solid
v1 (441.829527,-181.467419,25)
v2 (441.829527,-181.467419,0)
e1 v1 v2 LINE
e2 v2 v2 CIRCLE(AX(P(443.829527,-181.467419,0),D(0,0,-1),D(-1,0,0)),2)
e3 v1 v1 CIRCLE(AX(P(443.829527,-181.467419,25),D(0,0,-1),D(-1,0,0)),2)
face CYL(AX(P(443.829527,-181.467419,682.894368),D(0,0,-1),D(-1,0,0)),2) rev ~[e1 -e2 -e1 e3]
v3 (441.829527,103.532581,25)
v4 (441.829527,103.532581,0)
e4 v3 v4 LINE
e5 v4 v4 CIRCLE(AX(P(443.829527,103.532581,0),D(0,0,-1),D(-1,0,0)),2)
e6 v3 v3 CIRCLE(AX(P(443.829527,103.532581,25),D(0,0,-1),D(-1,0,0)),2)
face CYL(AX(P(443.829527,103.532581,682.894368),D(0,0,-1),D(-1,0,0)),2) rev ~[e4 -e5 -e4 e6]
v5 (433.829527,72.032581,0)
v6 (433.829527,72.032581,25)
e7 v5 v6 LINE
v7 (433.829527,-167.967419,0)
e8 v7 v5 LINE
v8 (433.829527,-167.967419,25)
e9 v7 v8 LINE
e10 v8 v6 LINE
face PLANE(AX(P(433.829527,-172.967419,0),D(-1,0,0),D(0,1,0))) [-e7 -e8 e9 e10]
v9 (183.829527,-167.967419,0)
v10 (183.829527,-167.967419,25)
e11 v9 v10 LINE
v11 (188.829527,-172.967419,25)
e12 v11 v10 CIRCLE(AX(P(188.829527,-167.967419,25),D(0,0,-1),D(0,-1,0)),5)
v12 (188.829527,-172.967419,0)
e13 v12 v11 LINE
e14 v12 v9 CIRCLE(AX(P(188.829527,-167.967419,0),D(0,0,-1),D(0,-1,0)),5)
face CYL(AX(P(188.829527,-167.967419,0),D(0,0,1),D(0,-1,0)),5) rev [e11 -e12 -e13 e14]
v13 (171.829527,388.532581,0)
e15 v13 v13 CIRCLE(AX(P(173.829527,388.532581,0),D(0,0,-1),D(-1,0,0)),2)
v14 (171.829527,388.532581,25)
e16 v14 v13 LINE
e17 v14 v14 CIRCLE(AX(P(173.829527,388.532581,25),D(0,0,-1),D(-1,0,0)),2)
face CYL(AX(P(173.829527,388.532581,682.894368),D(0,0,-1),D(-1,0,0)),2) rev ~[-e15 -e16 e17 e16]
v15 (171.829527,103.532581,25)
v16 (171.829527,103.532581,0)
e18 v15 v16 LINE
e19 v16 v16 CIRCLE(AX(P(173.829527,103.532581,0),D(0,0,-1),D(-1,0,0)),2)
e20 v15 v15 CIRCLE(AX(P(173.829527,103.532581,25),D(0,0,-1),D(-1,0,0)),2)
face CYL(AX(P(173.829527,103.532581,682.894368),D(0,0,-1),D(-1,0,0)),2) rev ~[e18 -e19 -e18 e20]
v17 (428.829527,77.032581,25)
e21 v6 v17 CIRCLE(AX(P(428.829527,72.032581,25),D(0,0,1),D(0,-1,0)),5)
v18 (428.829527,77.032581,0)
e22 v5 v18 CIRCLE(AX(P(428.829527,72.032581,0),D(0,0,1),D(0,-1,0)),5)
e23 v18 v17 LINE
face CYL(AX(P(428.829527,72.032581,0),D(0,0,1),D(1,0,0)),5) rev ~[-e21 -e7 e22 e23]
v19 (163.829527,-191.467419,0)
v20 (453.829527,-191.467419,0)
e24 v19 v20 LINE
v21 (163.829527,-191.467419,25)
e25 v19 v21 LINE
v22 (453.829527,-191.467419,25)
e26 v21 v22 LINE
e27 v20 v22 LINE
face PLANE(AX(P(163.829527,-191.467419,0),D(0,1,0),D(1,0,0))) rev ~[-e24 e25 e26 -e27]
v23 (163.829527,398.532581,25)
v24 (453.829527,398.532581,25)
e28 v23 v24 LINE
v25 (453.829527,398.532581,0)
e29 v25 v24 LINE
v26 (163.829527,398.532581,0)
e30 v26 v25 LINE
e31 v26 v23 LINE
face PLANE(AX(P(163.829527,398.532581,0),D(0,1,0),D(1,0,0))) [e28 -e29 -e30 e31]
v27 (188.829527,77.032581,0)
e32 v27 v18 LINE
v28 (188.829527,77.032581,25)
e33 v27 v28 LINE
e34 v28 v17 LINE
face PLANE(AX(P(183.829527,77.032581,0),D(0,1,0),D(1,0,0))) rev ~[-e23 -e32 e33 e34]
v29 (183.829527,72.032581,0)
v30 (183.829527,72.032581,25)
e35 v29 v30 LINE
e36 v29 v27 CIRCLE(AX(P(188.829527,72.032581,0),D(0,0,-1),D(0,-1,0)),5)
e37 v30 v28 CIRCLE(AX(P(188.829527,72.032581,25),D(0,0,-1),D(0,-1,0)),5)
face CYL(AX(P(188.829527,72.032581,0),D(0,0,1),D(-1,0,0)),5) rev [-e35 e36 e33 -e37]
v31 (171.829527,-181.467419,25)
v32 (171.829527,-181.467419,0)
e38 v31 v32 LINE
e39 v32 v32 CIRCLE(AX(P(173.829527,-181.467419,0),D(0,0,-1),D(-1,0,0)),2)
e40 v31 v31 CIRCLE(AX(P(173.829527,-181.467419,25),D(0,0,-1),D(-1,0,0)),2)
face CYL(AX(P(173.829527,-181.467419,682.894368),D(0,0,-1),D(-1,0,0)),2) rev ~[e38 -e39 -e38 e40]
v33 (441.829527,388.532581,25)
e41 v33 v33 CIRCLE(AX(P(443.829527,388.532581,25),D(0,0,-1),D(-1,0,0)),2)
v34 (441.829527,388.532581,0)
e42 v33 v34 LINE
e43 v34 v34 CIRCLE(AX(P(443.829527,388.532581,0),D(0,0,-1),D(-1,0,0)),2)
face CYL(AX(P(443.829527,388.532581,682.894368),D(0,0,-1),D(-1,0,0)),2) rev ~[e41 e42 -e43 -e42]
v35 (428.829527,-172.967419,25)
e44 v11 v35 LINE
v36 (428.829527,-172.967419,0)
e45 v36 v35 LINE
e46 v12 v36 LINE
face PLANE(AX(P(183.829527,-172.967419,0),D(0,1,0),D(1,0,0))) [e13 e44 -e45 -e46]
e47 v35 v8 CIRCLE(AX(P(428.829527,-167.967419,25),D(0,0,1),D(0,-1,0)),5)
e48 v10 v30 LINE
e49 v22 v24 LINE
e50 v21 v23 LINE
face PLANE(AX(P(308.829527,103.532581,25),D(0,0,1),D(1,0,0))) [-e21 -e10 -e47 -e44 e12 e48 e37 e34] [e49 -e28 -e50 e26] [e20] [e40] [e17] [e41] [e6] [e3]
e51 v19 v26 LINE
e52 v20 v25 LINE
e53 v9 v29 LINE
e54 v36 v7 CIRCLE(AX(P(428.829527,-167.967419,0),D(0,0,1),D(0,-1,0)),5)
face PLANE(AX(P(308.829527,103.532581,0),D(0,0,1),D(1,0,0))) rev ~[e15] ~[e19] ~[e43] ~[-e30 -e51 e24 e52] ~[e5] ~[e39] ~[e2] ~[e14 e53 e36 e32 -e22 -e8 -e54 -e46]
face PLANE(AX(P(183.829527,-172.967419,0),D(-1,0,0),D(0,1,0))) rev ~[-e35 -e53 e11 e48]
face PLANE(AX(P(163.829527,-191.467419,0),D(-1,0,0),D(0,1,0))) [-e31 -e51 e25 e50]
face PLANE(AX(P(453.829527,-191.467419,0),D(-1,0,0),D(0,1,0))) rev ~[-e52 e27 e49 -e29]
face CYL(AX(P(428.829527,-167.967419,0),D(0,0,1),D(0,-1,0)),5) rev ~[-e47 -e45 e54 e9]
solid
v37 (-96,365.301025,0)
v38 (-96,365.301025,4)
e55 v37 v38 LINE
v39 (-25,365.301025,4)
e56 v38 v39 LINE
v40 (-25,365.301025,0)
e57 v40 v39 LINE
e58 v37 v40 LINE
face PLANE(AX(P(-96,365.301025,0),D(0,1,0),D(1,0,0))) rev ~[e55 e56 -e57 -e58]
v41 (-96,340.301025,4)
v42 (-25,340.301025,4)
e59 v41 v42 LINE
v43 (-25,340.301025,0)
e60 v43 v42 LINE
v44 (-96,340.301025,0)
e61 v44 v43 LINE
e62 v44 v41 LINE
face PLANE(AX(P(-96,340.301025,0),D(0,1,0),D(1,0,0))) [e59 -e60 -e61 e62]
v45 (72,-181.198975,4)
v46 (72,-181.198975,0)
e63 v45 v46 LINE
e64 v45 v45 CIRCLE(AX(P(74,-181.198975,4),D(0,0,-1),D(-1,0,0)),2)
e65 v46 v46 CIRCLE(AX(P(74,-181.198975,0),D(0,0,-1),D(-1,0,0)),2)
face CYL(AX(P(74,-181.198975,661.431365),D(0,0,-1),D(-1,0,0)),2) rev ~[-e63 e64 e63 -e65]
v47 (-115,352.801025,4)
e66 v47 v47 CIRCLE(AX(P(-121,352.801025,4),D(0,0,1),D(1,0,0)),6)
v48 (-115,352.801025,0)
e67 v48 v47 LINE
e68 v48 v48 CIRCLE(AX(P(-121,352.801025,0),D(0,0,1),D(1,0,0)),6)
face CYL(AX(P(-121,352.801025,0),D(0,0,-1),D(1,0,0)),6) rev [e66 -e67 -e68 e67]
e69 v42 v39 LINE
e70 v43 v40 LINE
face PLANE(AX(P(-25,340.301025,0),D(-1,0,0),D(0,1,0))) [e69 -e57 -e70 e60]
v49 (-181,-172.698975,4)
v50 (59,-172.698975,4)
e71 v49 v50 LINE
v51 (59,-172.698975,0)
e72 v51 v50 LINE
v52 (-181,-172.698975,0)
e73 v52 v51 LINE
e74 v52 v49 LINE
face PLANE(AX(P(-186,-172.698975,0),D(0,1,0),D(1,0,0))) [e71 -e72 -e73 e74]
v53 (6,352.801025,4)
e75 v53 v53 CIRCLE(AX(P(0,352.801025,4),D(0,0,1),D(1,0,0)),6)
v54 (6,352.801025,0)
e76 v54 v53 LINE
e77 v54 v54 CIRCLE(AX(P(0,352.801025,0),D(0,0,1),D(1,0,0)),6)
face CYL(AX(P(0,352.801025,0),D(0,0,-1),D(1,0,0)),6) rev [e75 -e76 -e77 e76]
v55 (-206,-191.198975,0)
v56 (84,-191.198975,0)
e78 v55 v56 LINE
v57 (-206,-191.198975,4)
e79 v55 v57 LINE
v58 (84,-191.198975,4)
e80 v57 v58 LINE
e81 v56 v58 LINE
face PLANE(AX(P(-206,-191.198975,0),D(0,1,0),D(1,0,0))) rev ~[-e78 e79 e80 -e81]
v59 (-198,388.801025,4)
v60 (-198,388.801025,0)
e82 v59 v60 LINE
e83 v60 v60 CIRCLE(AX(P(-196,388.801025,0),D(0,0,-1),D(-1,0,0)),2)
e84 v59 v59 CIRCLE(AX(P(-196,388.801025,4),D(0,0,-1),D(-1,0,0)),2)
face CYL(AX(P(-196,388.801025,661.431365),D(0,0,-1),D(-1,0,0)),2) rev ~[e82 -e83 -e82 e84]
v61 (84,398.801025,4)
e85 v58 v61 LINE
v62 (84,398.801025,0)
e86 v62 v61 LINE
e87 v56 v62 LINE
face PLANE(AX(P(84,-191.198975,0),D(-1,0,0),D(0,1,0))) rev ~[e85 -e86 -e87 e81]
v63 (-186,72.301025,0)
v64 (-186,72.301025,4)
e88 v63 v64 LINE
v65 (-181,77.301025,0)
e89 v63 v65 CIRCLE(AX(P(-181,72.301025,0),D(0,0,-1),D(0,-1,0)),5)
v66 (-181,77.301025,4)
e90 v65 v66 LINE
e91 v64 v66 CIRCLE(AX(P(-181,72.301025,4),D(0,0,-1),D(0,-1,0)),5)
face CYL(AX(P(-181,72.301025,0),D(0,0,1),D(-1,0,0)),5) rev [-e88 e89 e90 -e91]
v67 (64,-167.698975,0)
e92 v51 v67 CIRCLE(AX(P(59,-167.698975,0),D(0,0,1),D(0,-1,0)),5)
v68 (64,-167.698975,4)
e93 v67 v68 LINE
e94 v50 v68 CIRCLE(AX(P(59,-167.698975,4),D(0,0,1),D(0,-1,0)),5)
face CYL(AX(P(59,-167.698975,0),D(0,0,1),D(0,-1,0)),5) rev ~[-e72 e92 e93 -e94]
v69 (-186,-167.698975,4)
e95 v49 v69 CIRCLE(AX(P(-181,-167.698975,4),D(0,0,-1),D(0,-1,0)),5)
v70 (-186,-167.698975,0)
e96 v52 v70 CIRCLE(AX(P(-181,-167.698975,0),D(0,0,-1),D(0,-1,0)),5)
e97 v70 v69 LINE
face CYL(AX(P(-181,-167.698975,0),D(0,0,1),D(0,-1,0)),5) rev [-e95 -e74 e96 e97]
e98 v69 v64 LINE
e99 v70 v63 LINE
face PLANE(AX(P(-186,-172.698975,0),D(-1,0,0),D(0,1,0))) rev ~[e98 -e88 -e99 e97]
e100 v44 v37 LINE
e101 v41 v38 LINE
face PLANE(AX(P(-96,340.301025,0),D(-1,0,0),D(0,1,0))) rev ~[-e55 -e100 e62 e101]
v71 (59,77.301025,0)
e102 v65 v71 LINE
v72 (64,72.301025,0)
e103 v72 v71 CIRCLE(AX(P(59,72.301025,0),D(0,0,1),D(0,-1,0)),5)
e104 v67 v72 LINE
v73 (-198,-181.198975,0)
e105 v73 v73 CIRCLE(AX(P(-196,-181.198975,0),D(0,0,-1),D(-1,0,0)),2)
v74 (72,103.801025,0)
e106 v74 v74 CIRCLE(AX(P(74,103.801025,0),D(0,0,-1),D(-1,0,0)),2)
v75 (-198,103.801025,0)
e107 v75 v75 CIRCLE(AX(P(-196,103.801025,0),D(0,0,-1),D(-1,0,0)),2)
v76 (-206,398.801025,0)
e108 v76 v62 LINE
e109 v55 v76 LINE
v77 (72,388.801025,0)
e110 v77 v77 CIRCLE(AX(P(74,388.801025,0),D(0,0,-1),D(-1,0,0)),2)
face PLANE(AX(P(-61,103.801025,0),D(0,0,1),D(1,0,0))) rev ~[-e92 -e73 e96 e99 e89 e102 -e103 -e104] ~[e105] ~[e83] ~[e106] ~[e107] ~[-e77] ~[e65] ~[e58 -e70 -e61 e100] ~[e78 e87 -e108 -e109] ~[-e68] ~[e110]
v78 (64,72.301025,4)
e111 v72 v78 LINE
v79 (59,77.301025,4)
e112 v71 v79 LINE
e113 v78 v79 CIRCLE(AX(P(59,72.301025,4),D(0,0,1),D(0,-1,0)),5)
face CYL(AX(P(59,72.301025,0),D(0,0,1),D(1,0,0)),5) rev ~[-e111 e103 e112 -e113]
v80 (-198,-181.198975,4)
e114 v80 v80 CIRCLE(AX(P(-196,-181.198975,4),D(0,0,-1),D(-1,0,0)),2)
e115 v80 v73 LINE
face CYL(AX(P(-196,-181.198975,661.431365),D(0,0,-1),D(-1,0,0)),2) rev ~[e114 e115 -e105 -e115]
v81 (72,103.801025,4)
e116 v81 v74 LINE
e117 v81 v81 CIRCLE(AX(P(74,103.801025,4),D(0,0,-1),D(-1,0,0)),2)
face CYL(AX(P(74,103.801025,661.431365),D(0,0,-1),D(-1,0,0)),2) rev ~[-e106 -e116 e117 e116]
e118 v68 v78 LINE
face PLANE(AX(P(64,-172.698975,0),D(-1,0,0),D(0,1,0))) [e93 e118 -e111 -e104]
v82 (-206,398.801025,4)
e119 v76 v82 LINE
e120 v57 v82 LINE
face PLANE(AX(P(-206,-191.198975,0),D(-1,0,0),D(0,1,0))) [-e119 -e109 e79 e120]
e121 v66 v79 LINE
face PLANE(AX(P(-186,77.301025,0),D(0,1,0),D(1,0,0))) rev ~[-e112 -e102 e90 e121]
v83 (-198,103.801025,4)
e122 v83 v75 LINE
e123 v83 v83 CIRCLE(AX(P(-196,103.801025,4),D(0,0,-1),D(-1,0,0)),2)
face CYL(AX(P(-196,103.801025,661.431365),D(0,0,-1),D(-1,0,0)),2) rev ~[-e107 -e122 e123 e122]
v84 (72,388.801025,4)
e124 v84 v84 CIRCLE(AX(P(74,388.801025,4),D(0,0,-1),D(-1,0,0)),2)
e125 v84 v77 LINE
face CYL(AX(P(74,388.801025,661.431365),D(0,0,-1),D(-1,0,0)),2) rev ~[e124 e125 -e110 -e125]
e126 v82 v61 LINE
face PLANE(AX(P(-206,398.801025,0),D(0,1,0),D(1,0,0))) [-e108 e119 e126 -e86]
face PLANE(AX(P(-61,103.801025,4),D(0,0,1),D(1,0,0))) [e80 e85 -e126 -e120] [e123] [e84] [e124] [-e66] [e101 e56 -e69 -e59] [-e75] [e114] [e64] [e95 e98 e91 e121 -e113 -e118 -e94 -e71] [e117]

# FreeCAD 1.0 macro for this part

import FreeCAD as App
import Part
import Sketcher
Q = App.Units.Quantity


def edges_at(feature, points):
    """Names of the edges that pass closest to the given points."""
    edges = feature.Shape.Edges
    near = lambda p: min(range(len(edges)), key=lambda i: edges[i].distToShape(Part.Vertex(*p))[0])
    return sorted({f"Edge{near(p) + 1}" for p in points})


def add_polygon(sketch, points):
    """Adds a closed chain of lines whose ends are joined by coincident constraints."""
    first, n = sketch.GeometryCount, len(points)
    for a, b in zip(points, points[1:] + points[:1]):
        sketch.addGeometry(Part.LineSegment(App.Vector(*a, 0), App.Vector(*b, 0)), False)
    for i in range(n):
        sketch.addConstraint(Sketcher.Constraint("Coincident", first + i, 2, first + (i + 1) % n, 1))

doc = App.newDocument("Part")
body = doc.addObject("PartDesign::Body", "Body")

# Sketch on XY plane
sketch1 = doc.addObject("Sketcher::SketchObject", "Sketch")
body.addObject(sketch1)
sketch1.AttachmentSupport = (doc.XY_Plane, [""])
sketch1.MapMode = "FlatFace"
add_polygon(sketch1, [(-206, 398.801025), (-206, -191.198975), (84, -191.198975), (84, 398.801025)])  # lines 0-3
add_polygon(sketch1, [(64, -172.698975), (-186, -172.698975), (-186, 77.301025), (64, 77.301025)])  # lines 4-7
sketch1.addGeometry(Part.Circle(App.Vector(-121, 352.801025, 0), App.Vector(0, 0, 1), 6), False)  # 8
add_polygon(sketch1, [(-25, 340.301025), (-96, 340.301025), (-96, 365.301025), (-25, 365.301025)])  # lines 9-12
sketch1.addGeometry(Part.Circle(App.Vector(0, 352.801025, 0), App.Vector(0, 0, 1), 6), False)  # 13
sketch1.addConstraint([
    Sketcher.Constraint("Vertical", 0),
    Sketcher.Constraint("Horizontal", 1),
    Sketcher.Constraint("Vertical", 2),
    Sketcher.Constraint("Horizontal", 3),
    Sketcher.Constraint("Horizontal", 4),
    Sketcher.Constraint("Vertical", 5),
    Sketcher.Constraint("Horizontal", 6),
    Sketcher.Constraint("Vertical", 7),
    Sketcher.Constraint("Horizontal", 9),
    Sketcher.Constraint("Vertical", 10),
    Sketcher.Constraint("Horizontal", 11),
    Sketcher.Constraint("Vertical", 12),
    Sketcher.Constraint("Equal", 8, 13),
    Sketcher.Constraint("PointOnObject", 13, 3, -2),
    Sketcher.Constraint("Horizontal", 8, 3, 13, 3),
    Sketcher.Constraint("Equal", 6, 5),
    Sketcher.Constraint("Diameter", 8, Q("12 mm")),
    Sketcher.Constraint("DistanceX", 1, 1, 1, 2, Q("290 mm")),
    Sketcher.Constraint("DistanceX", 4, 2, 4, 1, Q("250 mm")),
    Sketcher.Constraint("DistanceX", 9, 2, 9, 1, Q("71 mm")),
    Sketcher.Constraint("DistanceY", 0, 2, 0, 1, Q("590 mm")),
    Sketcher.Constraint("DistanceY", 10, 1, 10, 2, Q("25 mm")),
    Sketcher.Constraint("DistanceX", 8, 3, -1, 1, Q("121 mm")),
    Sketcher.Constraint("DistanceX", 0, 2, -1, 1, Q("206 mm")),
    Sketcher.Constraint("DistanceX", 4, 2, -1, 1, Q("186 mm")),
    Sketcher.Constraint("DistanceX", 9, 2, -1, 1, Q("96 mm")),
    Sketcher.Constraint("DistanceY", 0, 2, 8, 3, Q("544 mm")),
    Sketcher.Constraint("DistanceY", 5, 2, 9, 2, Q("263 mm")),
    Sketcher.Constraint("DistanceY", 0, 2, 4, 2, Q("18.5 mm")),
    Sketcher.Constraint("DistanceY", -1, 1, 8, 3, Q("352.801025 mm")),
])
pad1 = doc.addObject("PartDesign::Pad", "Pad")
body.addObject(pad1)
pad1.Profile = sketch1
pad1.Length = 4

# Sketch on XY plane
sketch2 = doc.addObject("Sketcher::SketchObject", "Sketch001")
body.addObject(sketch2)
sketch2.AttachmentSupport = (doc.XY_Plane, [""])
sketch2.MapMode = "FlatFace"
sketch2.AttachmentOffset = App.Placement(App.Vector(0, 0, 4), App.Rotation())
sketch2.addGeometry([
    Part.Circle(App.Vector(-196, 388.801025, 0), App.Vector(0, 0, 1), 2),  # 0
    Part.Circle(App.Vector(74, 388.801025, 0), App.Vector(0, 0, 1), 2),  # 1
    Part.Circle(App.Vector(74, 103.801025, 0), App.Vector(0, 0, 1), 2),  # 2
    Part.Circle(App.Vector(-196, 103.801025, 0), App.Vector(0, 0, 1), 2),  # 3
    Part.Circle(App.Vector(-196, -181.198975, 0), App.Vector(0, 0, 1), 2),  # 4
    Part.Circle(App.Vector(74, -181.198975, 0), App.Vector(0, 0, 1), 2),  # 5
], False)
sketch2.addConstraint([
    Sketcher.Constraint("Equal", 0, 1),
    Sketcher.Constraint("Equal", 1, 2),
    Sketcher.Constraint("Equal", 2, 3),
    Sketcher.Constraint("Equal", 3, 4),
    Sketcher.Constraint("Equal", 4, 5),
    Sketcher.Constraint("Horizontal", 0, 3, 1, 3),
    Sketcher.Constraint("Horizontal", 2, 3, 3, 3),
    Sketcher.Constraint("Horizontal", 4, 3, 5, 3),
    Sketcher.Constraint("Vertical", 1, 3, 2, 3),
    Sketcher.Constraint("Vertical", 0, 3, 3, 3),
    Sketcher.Constraint("Vertical", 3, 3, 4, 3),
    Sketcher.Constraint("Vertical", 2, 3, 5, 3),
    Sketcher.Constraint("Diameter", 0, Q("4 mm")),
    Sketcher.Constraint("DistanceX", 0, 3, -1, 1, Q("196 mm")),
    Sketcher.Constraint("DistanceX", -1, 1, 1, 3, Q("74 mm")),
    Sketcher.Constraint("DistanceY", 2, 3, 1, 3, Q("285 mm")),
    Sketcher.Constraint("DistanceY", 4, 3, 3, 3, Q("285 mm")),
    Sketcher.Constraint("DistanceY", -1, 1, 0, 3, Q("388.801025 mm")),
])
doc.recompute()
hole = doc.addObject("PartDesign::Hole", "Hole")
body.addObject(hole)
hole.Profile = sketch2
hole.ThreadType = "None"
hole.Diameter = 4
hole.DepthType = "ThroughAll"
doc.recompute()

fillet = doc.addObject("PartDesign::Fillet", "Fillet")
body.addObject(fillet)
fillet.Base = (hole, edges_at(hole, [
    (64, 77.301, 2),
    (-186, 77.301, 2),
    (64, -172.699, 2),
    (-186, -172.699, 2),
]))
fillet.Radius = 5
body2 = doc.addObject("PartDesign::Body", "Body001")

# Sketch on XY plane
sketch3 = doc.addObject("Sketcher::SketchObject", "Sketch002")
body2.addObject(sketch3)
sketch3.AttachmentSupport = (doc.getObject("XY_Plane001"), [""])
sketch3.MapMode = "FlatFace"
add_polygon(sketch3, [(163.829527, 398.532581), (163.829527, -191.467419), (453.829527, -191.467419), (453.829527, 398.532581)])  # lines 0-3
add_polygon(sketch3, [(433.829527, -172.967419), (183.829527, -172.967419), (183.829527, 77.032581), (433.829527, 77.032581)])  # lines 4-7
sketch3.addConstraint([
    Sketcher.Constraint("Vertical", 0),
    Sketcher.Constraint("Horizontal", 1),
    Sketcher.Constraint("Vertical", 2),
    Sketcher.Constraint("Horizontal", 3),
    Sketcher.Constraint("Horizontal", 4),
    Sketcher.Constraint("Vertical", 5),
    Sketcher.Constraint("Horizontal", 6),
    Sketcher.Constraint("Vertical", 7),
    Sketcher.Constraint("Equal", 6, 5),
    Sketcher.Constraint("DistanceX", 1, 1, 1, 2, Q("290 mm")),
    Sketcher.Constraint("DistanceX", 4, 2, 4, 1, Q("250 mm")),
    Sketcher.Constraint("DistanceY", 0, 2, 0, 1, Q("590 mm")),
    Sketcher.Constraint("DistanceX", 0, 2, 4, 2, Q("20 mm")),
    Sketcher.Constraint("DistanceY", 0, 2, 4, 2, Q("18.5 mm")),
    Sketcher.Constraint("DistanceY", 0, 2, -1, 1, Q("191.467419 mm")),
    Sketcher.Constraint("DistanceX", -1, 1, 0, 2, Q("163.829527 mm")),
])
pad2 = doc.addObject("PartDesign::Pad", "Pad001")
body2.addObject(pad2)
pad2.Profile = sketch3
pad2.Length = 25

# Sketch on XY plane
sketch4 = doc.addObject("Sketcher::SketchObject", "Sketch003")
body2.addObject(sketch4)
sketch4.AttachmentSupport = (doc.getObject("XY_Plane001"), [""])
sketch4.MapMode = "FlatFace"
sketch4.AttachmentOffset = App.Placement(App.Vector(0, 0, 25), App.Rotation())
sketch4.addGeometry([
    Part.Circle(App.Vector(173.829527, 388.532581, 0), App.Vector(0, 0, 1), 2),  # 0
    Part.Circle(App.Vector(443.829527, 388.532581, 0), App.Vector(0, 0, 1), 2),  # 1
    Part.Circle(App.Vector(443.829527, 103.532581, 0), App.Vector(0, 0, 1), 2),  # 2
    Part.Circle(App.Vector(173.829527, 103.532581, 0), App.Vector(0, 0, 1), 2),  # 3
    Part.Circle(App.Vector(173.829527, -181.467419, 0), App.Vector(0, 0, 1), 2),  # 4
    Part.Circle(App.Vector(443.829527, -181.467419, 0), App.Vector(0, 0, 1), 2),  # 5
], False)
sketch4.addConstraint([
    Sketcher.Constraint("Equal", 0, 1),
    Sketcher.Constraint("Equal", 1, 2),
    Sketcher.Constraint("Equal", 2, 3),
    Sketcher.Constraint("Equal", 3, 4),
    Sketcher.Constraint("Equal", 4, 5),
    Sketcher.Constraint("Horizontal", 0, 3, 1, 3),
    Sketcher.Constraint("Horizontal", 2, 3, 3, 3),
    Sketcher.Constraint("Horizontal", 4, 3, 5, 3),
    Sketcher.Constraint("Vertical", 1, 3, 2, 3),
    Sketcher.Constraint("Vertical", 0, 3, 3, 3),
    Sketcher.Constraint("Vertical", 3, 3, 4, 3),
    Sketcher.Constraint("Vertical", 2, 3, 5, 3),
    Sketcher.Constraint("Diameter", 0, Q("4 mm")),
    Sketcher.Constraint("DistanceX", 0, 3, 1, 3, Q("270 mm")),
    Sketcher.Constraint("DistanceY", 2, 3, 1, 3, Q("285 mm")),
    Sketcher.Constraint("DistanceY", 4, 3, 3, 3, Q("285 mm")),
    Sketcher.Constraint("DistanceY", -1, 1, 0, 3, Q("388.532581 mm")),
    Sketcher.Constraint("DistanceX", -1, 1, 0, 3, Q("173.829527 mm")),
])
doc.recompute()
hole2 = doc.addObject("PartDesign::Hole", "Hole001")
body2.addObject(hole2)
hole2.Profile = sketch4
hole2.ThreadType = "None"
hole2.Diameter = 4
hole2.DepthType = "ThroughAll"
doc.recompute()

fillet2 = doc.addObject("PartDesign::Fillet", "Fillet001")
body2.addObject(fillet2)
fillet2.Base = (hole2, edges_at(hole2, [
    (433.83, 77.033, 12.5),
    (183.83, 77.033, 12.5),
    (433.83, -172.967, 12.5),
    (183.83, -172.967, 12.5),
]))
fillet2.Radius = 5

doc.recompute()
